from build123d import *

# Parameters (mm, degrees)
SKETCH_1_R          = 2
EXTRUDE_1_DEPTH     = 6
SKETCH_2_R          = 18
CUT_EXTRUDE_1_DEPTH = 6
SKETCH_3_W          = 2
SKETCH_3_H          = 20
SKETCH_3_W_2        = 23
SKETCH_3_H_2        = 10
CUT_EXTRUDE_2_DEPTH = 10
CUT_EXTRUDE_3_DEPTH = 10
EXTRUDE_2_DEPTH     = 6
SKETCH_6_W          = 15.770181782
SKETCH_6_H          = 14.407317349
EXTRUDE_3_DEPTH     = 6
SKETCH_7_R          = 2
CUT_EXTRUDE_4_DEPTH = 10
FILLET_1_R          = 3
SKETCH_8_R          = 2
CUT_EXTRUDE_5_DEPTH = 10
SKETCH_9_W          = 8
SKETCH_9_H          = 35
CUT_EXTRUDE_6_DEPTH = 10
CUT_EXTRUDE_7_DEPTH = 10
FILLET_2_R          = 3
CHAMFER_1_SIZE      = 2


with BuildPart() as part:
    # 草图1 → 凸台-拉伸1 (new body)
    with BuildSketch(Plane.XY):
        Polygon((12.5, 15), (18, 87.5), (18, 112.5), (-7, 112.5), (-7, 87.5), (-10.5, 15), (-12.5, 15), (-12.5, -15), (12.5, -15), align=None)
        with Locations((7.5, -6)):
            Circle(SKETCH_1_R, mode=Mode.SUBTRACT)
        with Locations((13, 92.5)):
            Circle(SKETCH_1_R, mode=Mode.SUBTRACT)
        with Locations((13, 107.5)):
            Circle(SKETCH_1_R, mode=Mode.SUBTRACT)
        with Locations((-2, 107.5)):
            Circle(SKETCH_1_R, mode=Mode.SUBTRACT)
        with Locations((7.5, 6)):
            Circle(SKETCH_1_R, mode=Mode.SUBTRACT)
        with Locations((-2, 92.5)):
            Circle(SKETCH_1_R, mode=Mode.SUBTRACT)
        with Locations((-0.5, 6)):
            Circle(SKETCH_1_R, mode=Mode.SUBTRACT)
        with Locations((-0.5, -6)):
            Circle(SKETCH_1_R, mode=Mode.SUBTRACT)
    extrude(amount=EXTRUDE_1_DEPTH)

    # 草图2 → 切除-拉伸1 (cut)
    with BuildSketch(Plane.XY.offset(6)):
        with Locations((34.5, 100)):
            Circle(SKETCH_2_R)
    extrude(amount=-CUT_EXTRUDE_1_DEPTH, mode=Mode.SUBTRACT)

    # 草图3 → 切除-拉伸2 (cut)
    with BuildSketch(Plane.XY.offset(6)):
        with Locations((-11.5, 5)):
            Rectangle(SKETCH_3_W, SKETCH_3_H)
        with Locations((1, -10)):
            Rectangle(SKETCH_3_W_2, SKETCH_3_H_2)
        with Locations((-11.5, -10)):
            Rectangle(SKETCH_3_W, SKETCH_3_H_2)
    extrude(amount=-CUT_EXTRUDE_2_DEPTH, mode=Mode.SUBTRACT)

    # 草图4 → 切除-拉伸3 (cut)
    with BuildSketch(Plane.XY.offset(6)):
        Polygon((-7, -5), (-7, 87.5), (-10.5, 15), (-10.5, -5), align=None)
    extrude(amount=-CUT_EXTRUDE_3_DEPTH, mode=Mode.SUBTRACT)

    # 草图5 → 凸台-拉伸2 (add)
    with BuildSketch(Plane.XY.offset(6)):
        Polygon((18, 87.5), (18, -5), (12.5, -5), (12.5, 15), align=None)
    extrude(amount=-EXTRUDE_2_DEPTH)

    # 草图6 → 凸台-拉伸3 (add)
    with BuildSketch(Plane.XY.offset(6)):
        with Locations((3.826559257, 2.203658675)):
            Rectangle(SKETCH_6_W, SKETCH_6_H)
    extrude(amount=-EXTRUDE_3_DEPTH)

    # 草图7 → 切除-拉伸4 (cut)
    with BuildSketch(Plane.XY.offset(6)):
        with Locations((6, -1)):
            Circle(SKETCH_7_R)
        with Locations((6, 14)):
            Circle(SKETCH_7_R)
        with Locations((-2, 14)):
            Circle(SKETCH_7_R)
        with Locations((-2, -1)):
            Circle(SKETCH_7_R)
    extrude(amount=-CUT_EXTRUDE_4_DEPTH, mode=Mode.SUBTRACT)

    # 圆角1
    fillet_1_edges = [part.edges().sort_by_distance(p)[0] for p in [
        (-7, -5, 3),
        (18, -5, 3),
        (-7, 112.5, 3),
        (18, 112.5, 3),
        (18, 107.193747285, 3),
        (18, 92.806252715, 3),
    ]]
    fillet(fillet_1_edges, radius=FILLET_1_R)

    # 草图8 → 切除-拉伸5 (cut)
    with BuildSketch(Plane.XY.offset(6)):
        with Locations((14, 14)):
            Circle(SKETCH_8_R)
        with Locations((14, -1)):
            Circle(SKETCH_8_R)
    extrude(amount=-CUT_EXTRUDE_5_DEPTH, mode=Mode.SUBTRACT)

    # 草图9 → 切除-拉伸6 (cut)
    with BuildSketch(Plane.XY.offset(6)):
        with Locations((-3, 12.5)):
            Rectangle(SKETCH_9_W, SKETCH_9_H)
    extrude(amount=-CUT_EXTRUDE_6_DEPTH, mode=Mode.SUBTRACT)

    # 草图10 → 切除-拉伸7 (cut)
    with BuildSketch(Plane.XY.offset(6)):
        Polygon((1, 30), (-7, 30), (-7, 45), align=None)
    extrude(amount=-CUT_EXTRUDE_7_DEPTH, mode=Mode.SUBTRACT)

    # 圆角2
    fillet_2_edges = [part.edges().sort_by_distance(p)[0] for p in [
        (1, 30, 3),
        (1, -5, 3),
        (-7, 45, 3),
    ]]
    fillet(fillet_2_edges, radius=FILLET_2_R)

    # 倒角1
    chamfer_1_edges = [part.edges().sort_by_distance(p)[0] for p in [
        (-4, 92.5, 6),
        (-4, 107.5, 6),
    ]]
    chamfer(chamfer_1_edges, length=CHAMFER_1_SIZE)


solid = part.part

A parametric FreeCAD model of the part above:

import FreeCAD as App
import Part
import Sketcher
from FreeCAD import Vector


def edges_at(feature, points):
    """Names of the edges that pass closest to the given points."""
    edges = feature.Shape.Edges
    near = lambda p: min(range(len(edges)), key=lambda i: edges[i].distToShape(Part.Vertex(*p))[0])
    return sorted({f"Edge{near(p) + 1}" for p in points})

doc = App.newDocument("Part")
body = doc.addObject("PartDesign::Body", "Body")

sketch1 = doc.addObject("Sketcher::SketchObject", "Sketch")
body.addObject(sketch1)
sketch1.AttachmentSupport = (doc.XY_Plane, [""])
sketch1.MapMode = "FlatFace"
sketch1.addGeometry(Part.LineSegment(Vector(12.5, 15, 0), Vector(18, 87.5, 0)), False)
sketch1.addGeometry(Part.LineSegment(Vector(18, 87.5, 0), Vector(18, 112.5, 0)), False)
sketch1.addGeometry(Part.LineSegment(Vector(18, 112.5, 0), Vector(-7, 112.5, 0)), False)
sketch1.addGeometry(Part.LineSegment(Vector(-7, 112.5, 0), Vector(-7, 87.5, 0)), False)
sketch1.addGeometry(Part.LineSegment(Vector(-7, 87.5, 0), Vector(-10.5, 15, 0)), False)
sketch1.addGeometry(Part.LineSegment(Vector(-10.5, 15, 0), Vector(-12.5, 15, 0)), False)
sketch1.addGeometry(Part.LineSegment(Vector(-12.5, 15, 0), Vector(-12.5, -15, 0)), False)
sketch1.addGeometry(Part.LineSegment(Vector(-12.5, -15, 0), Vector(12.5, -15, 0)), False)
sketch1.addGeometry(Part.LineSegment(Vector(12.5, -15, 0), Vector(12.5, 15, 0)), False)
sketch1.addGeometry(Part.Circle(Vector(-0.5, -6, 0), Vector(0, 0, 1), 2), False)
sketch1.addGeometry(Part.Circle(Vector(-0.5, 6, 0), Vector(0, 0, 1), 2), False)
sketch1.addGeometry(Part.Circle(Vector(7.5, -6, 0), Vector(0, 0, 1), 2), False)
sketch1.addGeometry(Part.Circle(Vector(7.5, 6, 0), Vector(0, 0, 1), 2), False)
sketch1.addGeometry(Part.Circle(Vector(-2, 92.5, 0), Vector(0, 0, 1), 2), False)
sketch1.addGeometry(Part.Circle(Vector(-2, 107.5, 0), Vector(0, 0, 1), 2), False)
sketch1.addGeometry(Part.Circle(Vector(13, 92.5, 0), Vector(0, 0, 1), 2), False)
sketch1.addGeometry(Part.Circle(Vector(13, 107.5, 0), Vector(0, 0, 1), 2), False)
sketch1.addConstraint(Sketcher.Constraint("Coincident", 0, 2, 1, 1))
sketch1.addConstraint(Sketcher.Constraint("Coincident", 1, 2, 2, 1))
sketch1.addConstraint(Sketcher.Constraint("Coincident", 2, 2, 3, 1))
sketch1.addConstraint(Sketcher.Constraint("Coincident", 3, 2, 4, 1))
sketch1.addConstraint(Sketcher.Constraint("Coincident", 4, 2, 5, 1))
sketch1.addConstraint(Sketcher.Constraint("Coincident", 5, 2, 6, 1))
sketch1.addConstraint(Sketcher.Constraint("Coincident", 6, 2, 7, 1))
sketch1.addConstraint(Sketcher.Constraint("Coincident", 7, 2, 8, 1))
sketch1.addConstraint(Sketcher.Constraint("Coincident", 8, 2, 0, 1))
sketch1.addConstraint(Sketcher.Constraint("Vertical", 1))
sketch1.addConstraint(Sketcher.Constraint("Horizontal", 2))
sketch1.addConstraint(Sketcher.Constraint("Vertical", 3))
sketch1.addConstraint(Sketcher.Constraint("Horizontal", 5))
sketch1.addConstraint(Sketcher.Constraint("Vertical", 6))
sketch1.addConstraint(Sketcher.Constraint("Horizontal", 7))
sketch1.addConstraint(Sketcher.Constraint("Vertical", 8))
sketch1.addConstraint(Sketcher.Constraint("Equal", 9, 10))
sketch1.addConstraint(Sketcher.Constraint("Equal", 10, 11))
sketch1.addConstraint(Sketcher.Constraint("Equal", 11, 12))
sketch1.addConstraint(Sketcher.Constraint("Equal", 12, 13))
sketch1.addConstraint(Sketcher.Constraint("Equal", 13, 14))
sketch1.addConstraint(Sketcher.Constraint("Equal", 14, 15))
sketch1.addConstraint(Sketcher.Constraint("Equal", 15, 16))
sketch1.addConstraint(Sketcher.Constraint("Symmetric", 5, 2, 7, 2, -1, 1))
sketch1.addConstraint(Sketcher.Constraint("Symmetric", 9, 3, 10, 3, -1))
sketch1.addConstraint(Sketcher.Constraint("Symmetric", 11, 3, 12, 3, -1))
sketch1.addConstraint(Sketcher.Constraint("Horizontal", 9, 3, 11, 3))
sketch1.addConstraint(Sketcher.Constraint("Horizontal", 13, 3, 15, 3))
sketch1.addConstraint(Sketcher.Constraint("Horizontal", 14, 3, 16, 3))
sketch1.addConstraint(Sketcher.Constraint("Horizontal", 0, 2, 3, 2))
sketch1.addConstraint(Sketcher.Constraint("Horizontal", 5, 2, 8, 2))
sketch1.addConstraint(Sketcher.Constraint("Vertical", 13, 3, 14, 3))
sketch1.addConstraint(Sketcher.Constraint("Vertical", 15, 3, 16, 3))
sketch1.addConstraint(Sketcher.Constraint("Equal", 2, 7))
sketch1.addConstraint(Sketcher.Constraint("Equal", 7, 1))
sketch1.addConstraint(Sketcher.Constraint("Diameter", 9, 4.0))
sketch1.addConstraint(Sketcher.Constraint("DistanceX", 2, 2, 2, 1, 25.0))
sketch1.addConstraint(Sketcher.Constraint("DistanceX", 5, 2, 5, 1, 2.0))
sketch1.addConstraint(Sketcher.Constraint("DistanceY", 6, 2, 6, 1, 30.0))
sketch1.addConstraint(Sketcher.Constraint("DistanceY", 9, 3, -1, 1, 6.0))
sketch1.addConstraint(Sketcher.Constraint("DistanceX", 13, 3, -1, 1, 2.0))
sketch1.addConstraint(Sketcher.Constraint("DistanceX", -1, 1, 15, 3, 13.0))
sketch1.addConstraint(Sketcher.Constraint("DistanceX", -1, 1, 0, 2, 18.0))
sketch1.addConstraint(Sketcher.Constraint("DistanceX", 9, 3, 11, 3, 8.0))
sketch1.addConstraint(Sketcher.Constraint("DistanceY", 13, 3, 14, 3, 15.0))
sketch1.addConstraint(Sketcher.Constraint("DistanceY", 0, 2, 15, 3, 5.0))
sketch1.addConstraint(Sketcher.Constraint("DistanceX", 4, 2, 10, 3, 10.0))
sketch1.addConstraint(Sketcher.Constraint("DistanceY", -1, 1, 13, 3, 92.5))
pad1 = doc.addObject("PartDesign::Pad", "Pad")
body.addObject(pad1)
pad1.Profile = sketch1
pad1.Length = 6

sketch2 = doc.addObject("Sketcher::SketchObject", "Sketch001")
body.addObject(sketch2)
sketch2.AttachmentSupport = (doc.XY_Plane, [""])
sketch2.MapMode = "FlatFace"
sketch2.AttachmentOffset = App.Placement(Vector(0, 0, 6), App.Rotation())
sketch2.addGeometry(Part.Circle(Vector(34, 100, 0), Vector(0, 0, 1), 18), False)
sketch2.addConstraint(Sketcher.Constraint("Diameter", 0, 36.0))
sketch2.addConstraint(Sketcher.Constraint("DistanceY", -1, 1, 0, 3, 100.0))
sketch2.addConstraint(Sketcher.Constraint("DistanceX", -1, 1, 0, 3, 34.5))
pocket1 = doc.addObject("PartDesign::Pocket", "Pocket")
body.addObject(pocket1)
pocket1.Profile = sketch2
pocket1.Length = 6

sketch3 = doc.addObject("Sketcher::SketchObject", "Sketch002")
body.addObject(sketch3)
sketch3.AttachmentSupport = (doc.XY_Plane, [""])
sketch3.MapMode = "FlatFace"
sketch3.AttachmentOffset = App.Placement(Vector(0, 0, 6), App.Rotation())
sketch3.addGeometry(Part.LineSegment(Vector(-12.5, 15, 0), Vector(-12.5, -15, 0)), False)
sketch3.addGeometry(Part.LineSegment(Vector(-12.5, -15, 0), Vector(12.5, -15, 0)), False)
sketch3.addGeometry(Part.LineSegment(Vector(12.5, -15, 0), Vector(12.5, -5, 0)), False)
sketch3.addGeometry(Part.LineSegment(Vector(12.5, -5, 0), Vector(-10.5, -5, 0)), False)
sketch3.addGeometry(Part.LineSegment(Vector(-10.5, -5, 0), Vector(-10.5, 15, 0)), False)
sketch3.addGeometry(Part.LineSegment(Vector(-10.5, 15, 0), Vector(-12.5, 15, 0)), False)
sketch3.addConstraint(Sketcher.Constraint("Coincident", 0, 2, 1, 1))
sketch3.addConstraint(Sketcher.Constraint("Coincident", 1, 2, 2, 1))
sketch3.addConstraint(Sketcher.Constraint("Coincident", 2, 2, 3, 1))
sketch3.addConstraint(Sketcher.Constraint("Coincident", 3, 2, 4, 1))
sketch3.addConstraint(Sketcher.Constraint("Coincident", 4, 2, 5, 1))
sketch3.addConstraint(Sketcher.Constraint("Coincident", 5, 2, 0, 1))
sketch3.addConstraint(Sketcher.Constraint("Vertical", 0))
sketch3.addConstraint(Sketcher.Constraint("Horizontal", 1))
sketch3.addConstraint(Sketcher.Constraint("Vertical", 2))
sketch3.addConstraint(Sketcher.Constraint("Horizontal", 3))
sketch3.addConstraint(Sketcher.Constraint("Vertical", 4))
sketch3.addConstraint(Sketcher.Constraint("Horizontal", 5))
sketch3.addConstraint(Sketcher.Constraint("Symmetric", 1, 2, 5, 2, -1, 1))
sketch3.addConstraint(Sketcher.Constraint("DistanceX", 1, 1, 1, 2, 25.0))
sketch3.addConstraint(Sketcher.Constraint("DistanceX", 3, 2, 3, 1, 23.0))
sketch3.addConstraint(Sketcher.Constraint("DistanceY", 0, 2, 0, 1, 30.0))
sketch3.addConstraint(Sketcher.Constraint("DistanceY", 2, 1, 2, 2, 10.0))
pocket2 = doc.addObject("PartDesign::Pocket", "Pocket001")
body.addObject(pocket2)
pocket2.Profile = sketch3
pocket2.Length = 10

sketch4 = doc.addObject("Sketcher::SketchObject", "Sketch003")
body.addObject(sketch4)
sketch4.AttachmentSupport = (doc.XY_Plane, [""])
sketch4.MapMode = "FlatFace"
sketch4.AttachmentOffset = App.Placement(Vector(0, 0, 6), App.Rotation())
sketch4.addGeometry(Part.LineSegment(Vector(-7, -5, 0), Vector(-7, 87.5, 0)), False)
sketch4.addGeometry(Part.LineSegment(Vector(-7, 87.5, 0), Vector(-10.5, 15, 0)), False)
sketch4.addGeometry(Part.LineSegment(Vector(-10.5, 15, 0), Vector(-10.5, -5, 0)), False)
sketch4.addGeometry(Part.LineSegment(Vector(-10.5, -5, 0), Vector(-7, -5, 0)), False)
sketch4.addConstraint(Sketcher.Constraint("Coincident", 0, 2, 1, 1))
sketch4.addConstraint(Sketcher.Constraint("Coincident", 1, 2, 2, 1))
sketch4.addConstraint(Sketcher.Constraint("Coincident", 2, 2, 3, 1))
sketch4.addConstraint(Sketcher.Constraint("Coincident", 3, 2, 0, 1))
sketch4.addConstraint(Sketcher.Constraint("Vertical", 0))
sketch4.addConstraint(Sketcher.Constraint("Vertical", 2))
sketch4.addConstraint(Sketcher.Constraint("Horizontal", 3))
sketch4.addConstraint(Sketcher.Constraint("DistanceY", 2, 2, 2, 1, 20.0))
sketch4.addConstraint(Sketcher.Constraint("DistanceX", 3, 1, 3, 2, 3.5))
sketch4.addConstraint(Sketcher.Constraint("DistanceY", 0, 1, 0, 2, 92.5))
sketch4.addConstraint(Sketcher.Constraint("DistanceX", 0, 2, -1, 1, 7.0))
sketch4.addConstraint(Sketcher.Constraint("DistanceY", -1, 1, 1, 2, 15.0))
pocket3 = doc.addObject("PartDesign::Pocket", "Pocket002")
body.addObject(pocket3)
pocket3.Profile = sketch4
pocket3.Length = 10

sketch5 = doc.addObject("Sketcher::SketchObject", "Sketch004")
body.addObject(sketch5)
sketch5.AttachmentSupport = (doc.XY_Plane, [""])
sketch5.MapMode = "FlatFace"
sketch5.AttachmentOffset = App.Placement(Vector(0, 0, 6), App.Rotation())
sketch5.addGeometry(Part.LineSegment(Vector(18, -5, 0), Vector(18, 88, 0)), False)
sketch5.addGeometry(Part.LineSegment(Vector(18, 88, 0), Vector(12, 15, 0)), False)
sketch5.addGeometry(Part.LineSegment(Vector(12, 15, 0), Vector(12, -5, 0)), False)
sketch5.addGeometry(Part.LineSegment(Vector(12, -5, 0), Vector(18, -5, 0)), False)
sketch5.addConstraint(Sketcher.Constraint("Coincident", 0, 2, 1, 1))
sketch5.addConstraint(Sketcher.Constraint("Coincident", 1, 2, 2, 1))
sketch5.addConstraint(Sketcher.Constraint("Coincident", 2, 2, 3, 1))
sketch5.addConstraint(Sketcher.Constraint("Coincident", 3, 2, 0, 1))
sketch5.addConstraint(Sketcher.Constraint("Vertical", 0))
sketch5.addConstraint(Sketcher.Constraint("Vertical", 2))
sketch5.addConstraint(Sketcher.Constraint("Horizontal", 3))
sketch5.addConstraint(Sketcher.Constraint("DistanceY", 2, 2, 2, 1, 20.0))
sketch5.addConstraint(Sketcher.Constraint("DistanceX", 3, 1, 3, 2, 5.5))
sketch5.addConstraint(Sketcher.Constraint("DistanceY", 0, 1, 0, 2, 92.5))
sketch5.addConstraint(Sketcher.Constraint("DistanceX", -1, 1, 0, 2, 18.0))
sketch5.addConstraint(Sketcher.Constraint("DistanceY", -1, 1, 1, 2, 15.0))
pad2 = doc.addObject("PartDesign::Pad", "Pad001")
body.addObject(pad2)
pad2.Profile = sketch5
pad2.Length = 6
pad2.Reversed = True

sketch6 = doc.addObject("Sketcher::SketchObject", "Sketch005")
body.addObject(sketch6)
sketch6.AttachmentSupport = (doc.XY_Plane, [""])
sketch6.MapMode = "FlatFace"
sketch6.AttachmentOffset = App.Placement(Vector(0, 0, 6), App.Rotation())
sketch6.addGeometry(Part.LineSegment(Vector(-4, 9, 0), Vector(-4, -5, 0)), False)
sketch6.addGeometry(Part.LineSegment(Vector(-4, -5, 0), Vector(12, -5, 0)), False)
sketch6.addGeometry(Part.LineSegment(Vector(12, -5, 0), Vector(12, 9, 0)), False)
sketch6.addGeometry(Part.LineSegment(Vector(12, 9, 0), Vector(-4, 9, 0)), False)
sketch6.addConstraint(Sketcher.Constraint("Coincident", 0, 2, 1, 1))
sketch6.addConstraint(Sketcher.Constraint("Coincident", 1, 2, 2, 1))
sketch6.addConstraint(Sketcher.Constraint("Coincident", 2, 2, 3, 1))
sketch6.addConstraint(Sketcher.Constraint("Coincident", 3, 2, 0, 1))
sketch6.addConstraint(Sketcher.Constraint("Vertical", 0))
sketch6.addConstraint(Sketcher.Constraint("Horizontal", 1))
sketch6.addConstraint(Sketcher.Constraint("Vertical", 2))
sketch6.addConstraint(Sketcher.Constraint("Horizontal", 3))
sketch6.addConstraint(Sketcher.Constraint("DistanceY", 0, 2, -1, 1, 5.0))
sketch6.addConstraint(Sketcher.Constraint("DistanceX", 1, 1, 1, 2, 15.770182))
sketch6.addConstraint(Sketcher.Constraint("DistanceY", 0, 2, 0, 1, 14.407317))
sketch6.addConstraint(Sketcher.Constraint("DistanceX", 0, 2, -1, 1, 4.058532))
pad3 = doc.addObject("PartDesign::Pad", "Pad002")
body.addObject(pad3)
pad3.Profile = sketch6
pad3.Length = 6
pad3.Reversed = True

sketch7 = doc.addObject("Sketcher::SketchObject", "Sketch006")
body.addObject(sketch7)
sketch7.AttachmentSupport = (doc.XY_Plane, [""])
sketch7.MapMode = "FlatFace"
sketch7.AttachmentOffset = App.Placement(Vector(0, 0, 6), App.Rotation())
sketch7.addGeometry(Part.Circle(Vector(6, -1, 0), Vector(0, 0, 1), 2), False)
sketch7.addGeometry(Part.Circle(Vector(6, 14, 0), Vector(0, 0, 1), 2), False)
sketch7.addGeometry(Part.Circle(Vector(-2, 14, 0), Vector(0, 0, 1), 2), False)
sketch7.addGeometry(Part.Circle(Vector(-2, -1, 0), Vector(0, 0, 1), 2), False)
sketch7.addConstraint(Sketcher.Constraint("Equal", 0, 1))
sketch7.addConstraint(Sketcher.Constraint("Equal", 1, 2))
sketch7.addConstraint(Sketcher.Constraint("Equal", 2, 3))
sketch7.addConstraint(Sketcher.Constraint("Horizontal", 1, 3, 2, 3))
sketch7.addConstraint(Sketcher.Constraint("Horizontal", 0, 3, 3, 3))
sketch7.addConstraint(Sketcher.Constraint("Vertical", 0, 3, 1, 3))
sketch7.addConstraint(Sketcher.Constraint("Vertical", 2, 3, 3, 3))
sketch7.addConstraint(Sketcher.Constraint("Diameter", 0, 4.0))
sketch7.addConstraint(Sketcher.Constraint("DistanceX", -1, 1, 0, 3, 6.0))
sketch7.addConstraint(Sketcher.Constraint("DistanceY", 0, 3, -1, 1, 1.0))
sketch7.addConstraint(Sketcher.Constraint("DistanceY", -1, 1, 1, 3, 14.0))
sketch7.addConstraint(Sketcher.Constraint("DistanceX", 2, 3, -1, 1, 2.0))
pocket4 = doc.addObject("PartDesign::Pocket", "Pocket003")
body.addObject(pocket4)
pocket4.Profile = sketch7
pocket4.Length = 10
doc.recompute()

fillet = doc.addObject("PartDesign::Fillet", "Fillet")
body.addObject(fillet)
fillet.Base = (pocket4, edges_at(pocket4, [
    (-7, -5, 3),
    (18, -5, 3),
    (-7, 112.5, 3),
    (18, 112.5, 3),
    (18, 107.194, 3),
    (18, 92.806, 3),
]))
fillet.Radius = 3

sketch8 = doc.addObject("Sketcher::SketchObject", "Sketch007")
body.addObject(sketch8)
sketch8.AttachmentSupport = (doc.XY_Plane, [""])
sketch8.MapMode = "FlatFace"
sketch8.AttachmentOffset = App.Placement(Vector(0, 0, 6), App.Rotation())
sketch8.addGeometry(Part.Circle(Vector(14, 14, 0), Vector(0, 0, 1), 2), False)
sketch8.addGeometry(Part.Circle(Vector(14, -1, 0), Vector(0, 0, 1), 2), False)
sketch8.addConstraint(Sketcher.Constraint("Equal", 0, 1))
sketch8.addConstraint(Sketcher.Constraint("Vertical", 0, 3, 1, 3))
sketch8.addConstraint(Sketcher.Constraint("Diameter", 0, 4.0))
sketch8.addConstraint(Sketcher.Constraint("DistanceX", -1, 1, 0, 3, 14.0))
sketch8.addConstraint(Sketcher.Constraint("DistanceY", -1, 1, 0, 3, 14.0))
sketch8.addConstraint(Sketcher.Constraint("DistanceY", 1, 3, -1, 1, 1.0))
pocket5 = doc.addObject("PartDesign::Pocket", "Pocket004")
body.addObject(pocket5)
pocket5.Profile = sketch8
pocket5.Length = 10

sketch9 = doc.addObject("Sketcher::SketchObject", "Sketch008")
body.addObject(sketch9)
sketch9.AttachmentSupport = (doc.XY_Plane, [""])
sketch9.MapMode = "FlatFace"
sketch9.AttachmentOffset = App.Placement(Vector(0, 0, 6), App.Rotation())
sketch9.addGeometry(Part.LineSegment(Vector(-7, 30, 0), Vector(-7, -5, 0)), False)
sketch9.addGeometry(Part.LineSegment(Vector(-7, -5, 0), Vector(1, -5, 0)), False)
sketch9.addGeometry(Part.LineSegment(Vector(1, -5, 0), Vector(1, 30, 0)), False)
sketch9.addGeometry(Part.LineSegment(Vector(1, 30, 0), Vector(-7, 30, 0)), False)
sketch9.addConstraint(Sketcher.Constraint("Coincident", 0, 2, 1, 1))
sketch9.addConstraint(Sketcher.Constraint("Coincident", 1, 2, 2, 1))
sketch9.addConstraint(Sketcher.Constraint("Coincident", 2, 2, 3, 1))
sketch9.addConstraint(Sketcher.Constraint("Coincident", 3, 2, 0, 1))
sketch9.addConstraint(Sketcher.Constraint("Vertical", 0))
sketch9.addConstraint(Sketcher.Constraint("Horizontal", 1))
sketch9.addConstraint(Sketcher.Constraint("Vertical", 2))
sketch9.addConstraint(Sketcher.Constraint("Horizontal", 3))
sketch9.addConstraint(Sketcher.Constraint("DistanceX", 1, 1, 1, 2, 8.0))
sketch9.addConstraint(Sketcher.Constraint("DistanceY", 0, 2, 0, 1, 35.0))
sketch9.addConstraint(Sketcher.Constraint("DistanceX", 0, 2, -1, 1, 7.0))
sketch9.addConstraint(Sketcher.Constraint("DistanceY", 0, 2, -1, 1, 5.0))
pocket6 = doc.addObject("PartDesign::Pocket", "Pocket005")
body.addObject(pocket6)
pocket6.Profile = sketch9
pocket6.Length = 10

sketch10 = doc.addObject("Sketcher::SketchObject", "Sketch009")
body.addObject(sketch10)
sketch10.AttachmentSupport = (doc.XY_Plane, [""])
sketch10.MapMode = "FlatFace"
sketch10.AttachmentOffset = App.Placement(Vector(0, 0, 6), App.Rotation())
sketch10.addGeometry(Part.LineSegment(Vector(-7, 30, 0), Vector(1, 30, 0)), False)
sketch10.addGeometry(Part.LineSegment(Vector(1, 30, 0), Vector(-7, 45, 0)), False)
sketch10.addGeometry(Part.LineSegment(Vector(-7, 45, 0), Vector(-7, 30, 0)), False)
sketch10.addConstraint(Sketcher.Constraint("Coincident", 0, 2, 1, 1))
sketch10.addConstraint(Sketcher.Constraint("Coincident", 1, 2, 2, 1))
sketch10.addConstraint(Sketcher.Constraint("Coincident", 2, 2, 0, 1))
sketch10.addConstraint(Sketcher.Constraint("Horizontal", 0))
sketch10.addConstraint(Sketcher.Constraint("Vertical", 2))
sketch10.addConstraint(Sketcher.Constraint("DistanceX", 0, 1, 0, 2, 8.0))
sketch10.addConstraint(Sketcher.Constraint("DistanceY", 2, 2, 2, 1, 15.0))
sketch10.addConstraint(Sketcher.Constraint("DistanceX", -1, 1, 0, 2, 1.0))
sketch10.addConstraint(Sketcher.Constraint("DistanceY", -1, 1, 0, 2, 30.0))
pocket7 = doc.addObject("PartDesign::Pocket", "Pocket006")
body.addObject(pocket7)
pocket7.Profile = sketch10
pocket7.Length = 10
doc.recompute()

fillet2 = doc.addObject("PartDesign::Fillet", "Fillet001")
body.addObject(fillet2)
fillet2.Base = (pocket7, edges_at(pocket7, [(1, 30, 3), (1, -5, 3), (-7, 45, 3)]))
fillet2.Radius = 3
doc.recompute()

chamfer = doc.addObject("PartDesign::Chamfer", "Chamfer")
body.addObject(chamfer)
chamfer.Base = (fillet2, edges_at(fillet2, [(-4, 92.5, 6), (-4, 107.5, 6)]))
chamfer.Size = 2

doc.recompute()
